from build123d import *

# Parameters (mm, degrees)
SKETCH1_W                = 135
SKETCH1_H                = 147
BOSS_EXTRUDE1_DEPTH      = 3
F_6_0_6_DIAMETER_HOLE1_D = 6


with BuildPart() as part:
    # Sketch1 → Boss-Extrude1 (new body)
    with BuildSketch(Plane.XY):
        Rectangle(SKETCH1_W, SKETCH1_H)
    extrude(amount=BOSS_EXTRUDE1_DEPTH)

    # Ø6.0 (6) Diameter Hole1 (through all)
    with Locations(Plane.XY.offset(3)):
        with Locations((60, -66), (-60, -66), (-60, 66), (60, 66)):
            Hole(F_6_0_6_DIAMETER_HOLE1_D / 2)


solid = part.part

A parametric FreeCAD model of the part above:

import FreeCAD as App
import Part
import Sketcher

V = App.Vector

doc = App.newDocument("Part")
body = doc.addObject("PartDesign::Body", "Body")

# Sketch on XY plane
sketch1 = body.newObject("Sketcher::SketchObject", "Sketch")
sketch1.AttachmentSupport = (doc.getObject("XY_Plane"), [""])
sketch1.MapMode = "FlatFace"
sketch1.addGeometry([
    Part.LineSegment(V(-67.5, 73.5, 0), V(-67.5, -73.5, 0)),
    Part.LineSegment(V(-67.5, -73.5, 0), V(67.5, -73.5, 0)),
    Part.LineSegment(V(67.5, -73.5, 0), V(67.5, 73.5, 0)),
    Part.LineSegment(V(67.5, 73.5, 0), V(-67.5, 73.5, 0)),
], False)
sketch1.addConstraint([
    Sketcher.Constraint("Coincident", 0, 2, 1, 1),
    Sketcher.Constraint("Coincident", 1, 2, 2, 1),
    Sketcher.Constraint("Coincident", 2, 2, 3, 1),
    Sketcher.Constraint("Coincident", 3, 2, 0, 1),
    Sketcher.Constraint("Vertical", 0),
    Sketcher.Constraint("Horizontal", 1),
    Sketcher.Constraint("Vertical", 2),
    Sketcher.Constraint("Horizontal", 3),
    Sketcher.Constraint("Symmetric", 0, 2, 2, 2, -1, 1),
    Sketcher.Constraint("DistanceX", 1, 1, 1, 2, 135.0),
    Sketcher.Constraint("DistanceY", 0, 2, 0, 1, 147.0),
])
pad1 = body.newObject("PartDesign::Pad", "Pad")
pad1.Profile = sketch1
pad1.Length = 3

# Sketch on XY plane
sketch2 = body.newObject("Sketcher::SketchObject", "Sketch001")
sketch2.AttachmentSupport = (doc.getObject("XY_Plane"), [""])
sketch2.MapMode = "FlatFace"
sketch2.AttachmentOffset = App.Placement(V(0, 0, 3), App.Rotation())
sketch2.addGeometry([
    Part.Circle(V(60, -66, 0), V(0, 0, 1), 3),
    Part.Circle(V(-60, -66, 0), V(0, 0, 1), 3),
    Part.Circle(V(-60, 66, 0), V(0, 0, 1), 3),
    Part.Circle(V(60, 66, 0), V(0, 0, 1), 3),
], False)
sketch2.addConstraint([
    Sketcher.Constraint("Equal", 0, 1),
    Sketcher.Constraint("Equal", 1, 2),
    Sketcher.Constraint("Equal", 2, 3),
    Sketcher.Constraint("Symmetric", 0, 3, 2, 3, -1, 1),
    Sketcher.Constraint("Symmetric", 1, 3, 3, 3, -1, 1),
    Sketcher.Constraint("Symmetric", 0, 3, 1, 3, -2),
    Sketcher.Constraint("Diameter", 0, 6.0),
    Sketcher.Constraint("DistanceX", -1, 1, 0, 3, 60.0),
    Sketcher.Constraint("DistanceY", 0, 3, -1, 1, 66.0),
])
doc.recompute()
hole = body.newObject("PartDesign::Hole", "Hole")
hole.Profile = sketch2
hole.ThreadType = "None"
hole.Diameter = 6
hole.DepthType = "ThroughAll"

doc.recompute()
